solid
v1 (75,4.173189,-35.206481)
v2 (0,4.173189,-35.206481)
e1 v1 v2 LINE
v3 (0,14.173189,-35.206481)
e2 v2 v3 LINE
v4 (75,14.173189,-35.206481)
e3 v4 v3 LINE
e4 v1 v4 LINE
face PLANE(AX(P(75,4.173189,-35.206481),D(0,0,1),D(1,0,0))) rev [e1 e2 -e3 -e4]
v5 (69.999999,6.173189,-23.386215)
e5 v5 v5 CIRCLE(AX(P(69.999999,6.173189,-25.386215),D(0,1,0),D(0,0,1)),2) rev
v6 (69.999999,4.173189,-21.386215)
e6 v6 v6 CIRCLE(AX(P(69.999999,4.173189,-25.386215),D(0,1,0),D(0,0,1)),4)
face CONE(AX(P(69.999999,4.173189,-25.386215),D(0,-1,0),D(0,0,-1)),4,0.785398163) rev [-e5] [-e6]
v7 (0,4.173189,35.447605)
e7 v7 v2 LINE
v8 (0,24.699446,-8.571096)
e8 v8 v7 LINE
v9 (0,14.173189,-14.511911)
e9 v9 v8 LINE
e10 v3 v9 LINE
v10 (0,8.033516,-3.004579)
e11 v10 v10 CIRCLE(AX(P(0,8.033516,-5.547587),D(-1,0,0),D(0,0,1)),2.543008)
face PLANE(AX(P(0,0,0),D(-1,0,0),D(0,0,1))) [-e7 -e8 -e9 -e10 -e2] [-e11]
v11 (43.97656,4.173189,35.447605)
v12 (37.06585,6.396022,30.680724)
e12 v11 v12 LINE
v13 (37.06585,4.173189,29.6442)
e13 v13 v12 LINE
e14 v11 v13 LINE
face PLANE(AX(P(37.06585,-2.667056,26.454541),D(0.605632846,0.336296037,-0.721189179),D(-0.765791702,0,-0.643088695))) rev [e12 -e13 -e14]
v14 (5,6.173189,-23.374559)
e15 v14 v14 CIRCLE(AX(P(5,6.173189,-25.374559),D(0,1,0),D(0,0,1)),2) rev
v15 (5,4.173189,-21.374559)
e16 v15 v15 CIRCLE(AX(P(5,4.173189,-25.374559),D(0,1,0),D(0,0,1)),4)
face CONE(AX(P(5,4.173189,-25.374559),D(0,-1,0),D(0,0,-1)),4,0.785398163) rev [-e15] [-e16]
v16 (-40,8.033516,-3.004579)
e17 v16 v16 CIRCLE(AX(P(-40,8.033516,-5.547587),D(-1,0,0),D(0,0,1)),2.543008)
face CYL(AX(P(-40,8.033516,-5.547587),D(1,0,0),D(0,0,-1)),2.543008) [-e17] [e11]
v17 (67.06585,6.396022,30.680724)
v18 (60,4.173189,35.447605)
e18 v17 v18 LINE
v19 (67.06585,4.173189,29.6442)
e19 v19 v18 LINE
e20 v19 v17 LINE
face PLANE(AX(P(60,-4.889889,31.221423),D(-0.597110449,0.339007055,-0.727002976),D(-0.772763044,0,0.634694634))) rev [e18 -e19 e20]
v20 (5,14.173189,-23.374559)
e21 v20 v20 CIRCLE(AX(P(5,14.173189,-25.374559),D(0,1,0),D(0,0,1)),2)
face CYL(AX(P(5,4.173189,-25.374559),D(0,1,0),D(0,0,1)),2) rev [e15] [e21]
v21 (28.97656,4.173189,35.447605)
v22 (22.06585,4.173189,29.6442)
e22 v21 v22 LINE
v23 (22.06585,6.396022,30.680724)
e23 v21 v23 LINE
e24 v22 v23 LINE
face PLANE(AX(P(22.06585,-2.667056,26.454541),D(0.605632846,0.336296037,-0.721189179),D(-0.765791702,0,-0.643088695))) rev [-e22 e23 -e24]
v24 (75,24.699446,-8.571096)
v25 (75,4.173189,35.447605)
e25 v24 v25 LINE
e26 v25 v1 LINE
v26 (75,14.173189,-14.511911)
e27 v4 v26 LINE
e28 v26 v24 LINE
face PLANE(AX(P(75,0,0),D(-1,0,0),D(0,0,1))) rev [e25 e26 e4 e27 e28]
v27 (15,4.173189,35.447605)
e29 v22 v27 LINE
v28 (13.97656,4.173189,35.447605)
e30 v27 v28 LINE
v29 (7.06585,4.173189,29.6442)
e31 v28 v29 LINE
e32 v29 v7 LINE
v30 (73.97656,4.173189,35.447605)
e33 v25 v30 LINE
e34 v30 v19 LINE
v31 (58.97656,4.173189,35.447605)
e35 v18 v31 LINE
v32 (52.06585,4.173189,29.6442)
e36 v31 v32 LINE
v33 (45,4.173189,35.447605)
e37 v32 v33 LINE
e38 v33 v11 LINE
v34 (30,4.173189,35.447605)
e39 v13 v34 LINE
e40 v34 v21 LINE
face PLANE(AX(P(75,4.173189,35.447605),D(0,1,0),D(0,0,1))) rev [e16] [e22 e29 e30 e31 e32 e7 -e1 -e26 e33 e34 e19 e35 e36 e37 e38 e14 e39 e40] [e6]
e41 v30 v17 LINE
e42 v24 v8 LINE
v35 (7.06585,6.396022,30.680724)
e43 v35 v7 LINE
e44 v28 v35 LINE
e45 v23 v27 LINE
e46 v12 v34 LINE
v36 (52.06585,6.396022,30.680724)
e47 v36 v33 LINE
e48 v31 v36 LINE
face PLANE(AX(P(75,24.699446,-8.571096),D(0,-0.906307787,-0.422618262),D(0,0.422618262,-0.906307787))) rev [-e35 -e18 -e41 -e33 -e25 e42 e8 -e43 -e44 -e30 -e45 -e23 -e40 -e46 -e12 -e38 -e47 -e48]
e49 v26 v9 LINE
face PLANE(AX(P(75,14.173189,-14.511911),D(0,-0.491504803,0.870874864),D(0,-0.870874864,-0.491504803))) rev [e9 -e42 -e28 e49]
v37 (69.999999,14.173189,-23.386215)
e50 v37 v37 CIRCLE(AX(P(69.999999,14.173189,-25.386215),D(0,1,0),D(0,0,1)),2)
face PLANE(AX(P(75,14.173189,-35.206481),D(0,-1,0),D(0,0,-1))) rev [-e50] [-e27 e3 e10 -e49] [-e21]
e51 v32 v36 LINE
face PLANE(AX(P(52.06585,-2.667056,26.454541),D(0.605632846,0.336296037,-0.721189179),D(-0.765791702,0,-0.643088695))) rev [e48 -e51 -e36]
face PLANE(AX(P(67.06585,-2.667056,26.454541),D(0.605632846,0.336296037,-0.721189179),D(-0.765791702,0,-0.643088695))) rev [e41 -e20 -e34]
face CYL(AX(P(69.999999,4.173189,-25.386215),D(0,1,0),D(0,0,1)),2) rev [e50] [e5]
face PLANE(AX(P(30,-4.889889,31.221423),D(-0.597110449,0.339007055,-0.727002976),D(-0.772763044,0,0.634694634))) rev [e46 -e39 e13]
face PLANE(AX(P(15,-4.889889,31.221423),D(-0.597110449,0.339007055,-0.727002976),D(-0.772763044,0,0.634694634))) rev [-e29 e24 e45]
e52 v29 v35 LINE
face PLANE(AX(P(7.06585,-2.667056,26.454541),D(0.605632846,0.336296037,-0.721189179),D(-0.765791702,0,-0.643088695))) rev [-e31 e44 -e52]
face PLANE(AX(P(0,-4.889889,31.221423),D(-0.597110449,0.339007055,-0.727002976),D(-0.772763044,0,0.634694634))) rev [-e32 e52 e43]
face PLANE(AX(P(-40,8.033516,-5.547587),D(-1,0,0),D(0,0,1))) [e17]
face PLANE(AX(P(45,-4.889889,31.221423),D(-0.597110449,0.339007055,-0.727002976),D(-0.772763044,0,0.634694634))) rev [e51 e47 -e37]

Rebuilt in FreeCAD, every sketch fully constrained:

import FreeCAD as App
import Part
import Sketcher

V = App.Vector
Q = App.Units.Quantity


def edges_at(feature, points):
    """Names of the edges that pass closest to the given points."""
    edges = feature.Shape.Edges
    near = lambda p: min(range(len(edges)), key=lambda i: edges[i].distToShape(Part.Vertex(*p))[0])
    return sorted({f"Edge{near(p) + 1}" for p in points})


def add_polygon(sketch, points):
    """Adds a closed chain of lines whose ends are joined by coincident constraints."""
    first, n = sketch.GeometryCount, len(points)
    for a, b in zip(points, points[1:] + points[:1]):
        sketch.addGeometry(Part.LineSegment(App.Vector(*a, 0), App.Vector(*b, 0)), False)
    for i in range(n):
        sketch.addConstraint(Sketcher.Constraint("Coincident", first + i, 2, first + (i + 1) % n, 1))

doc = App.newDocument("Part")
body = doc.addObject("PartDesign::Body", "Body")

sketch1 = body.newObject("Sketcher::SketchObject", "Sketch")
sketch1.AttachmentSupport = (doc.getObject("YZ_Plane"), [""])
sketch1.MapMode = "FlatFace"
add_polygon(sketch1, [(4, 35), (4, -35), (14, -35), (14, -15), (25, -9)])
sketch1.addConstraint([
    Sketcher.Constraint("Vertical", 0),
    Sketcher.Constraint("Horizontal", 1),
    Sketcher.Constraint("Vertical", 2),
    Sketcher.Constraint("DistanceX", 1, 1, 1, 2, 10.0),
    Sketcher.Constraint("Angle", 4, Q("115 deg")),
    Sketcher.Constraint("DistanceY", 2, 1, 2, 2, 20.694571),
    Sketcher.Constraint("DistanceY", 3, 2, 4, 2, 44.018701),
    Sketcher.Constraint("DistanceY", 0, 2, 0, 1, 70.654087),
    Sketcher.Constraint("DistanceX", -1, 1, 0, 2, 4.173189),
    Sketcher.Constraint("DistanceY", 0, 2, -1, 1, 35.206481),
])
pad1 = body.newObject("PartDesign::Pad", "Pad")
pad1.Profile = sketch1
pad1.Length = 75

sketch2 = body.newObject("Sketcher::SketchObject", "Sketch001")
sketch2.AttachmentSupport = (doc.getObject("XZ_Plane"), [""])
sketch2.MapMode = "FlatFace"
sketch2.AttachmentOffset = App.Placement(V(0, 0, -14.173189), App.Rotation())
sketch2.addGeometry([
    Part.Circle(V(5, -25.4, 0), V(0, 0, 1), 2),
    Part.Circle(V(70, -25.4, 0), V(0, 0, 1), 2),
], False)
sketch2.addConstraint([
    Sketcher.Constraint("Equal", 0, 1),
    Sketcher.Constraint("Diameter", 0, 4.0),
    Sketcher.Constraint("DistanceX", -1, 1, 0, 3, 5.0),
    Sketcher.Constraint("DistanceX", -1, 1, 1, 3, 69.999999),
    Sketcher.Constraint("DistanceY", 0, 3, -1, 1, 25.374559),
    Sketcher.Constraint("DistanceY", 1, 3, -1, 1, 25.386215),
])
pocket1 = body.newObject("PartDesign::Pocket", "Pocket")
pocket1.Profile = sketch2
pocket1.Length = 10
pocket1.Reversed = True

sketch3 = body.newObject("Sketcher::SketchObject", "Sketch002")
sketch3.Placement = App.Placement(V(0, 17.005052, 7.929586), App.Rotation(V(1, 0, 0), V(0, 0.422618262, -0.906307787), V(0, 0.906307787, 0.422618262), "ZXY"))
add_polygon(sketch3, [(7, -25), (0, -30), (14, -30)])
add_polygon(sketch3, [(29, -30), (22, -25), (15, -30)])
add_polygon(sketch3, [(44, -30), (37, -25), (30, -30)])
add_polygon(sketch3, [(59, -30), (52, -25), (45, -30)])
add_polygon(sketch3, [(74, -30), (67, -25), (60, -30)])
sketch3.addConstraint([
    Sketcher.Constraint("Horizontal", 1),
    Sketcher.Constraint("Horizontal", 5),
    Sketcher.Constraint("Horizontal", 8),
    Sketcher.Constraint("Horizontal", 11),
    Sketcher.Constraint("Horizontal", 14),
    Sketcher.Constraint("PointOnObject", 0, 2, -2),
    Sketcher.Constraint("Parallel", 2, 3),
    Sketcher.Constraint("Parallel", 0, 4),
    Sketcher.Constraint("Parallel", 3, 6),
    Sketcher.Constraint("Parallel", 4, 7),
    Sketcher.Constraint("Parallel", 6, 9),
    Sketcher.Constraint("Parallel", 7, 10),
    Sketcher.Constraint("Parallel", 9, 12),
    Sketcher.Constraint("Parallel", 10, 13),
    Sketcher.Constraint("Horizontal", 2, 2, 3, 2),
    Sketcher.Constraint("Horizontal", 1, 2, 4, 2),
    Sketcher.Constraint("Horizontal", 3, 2, 6, 2),
    Sketcher.Constraint("Horizontal", 5, 2, 7, 2),
    Sketcher.Constraint("Horizontal", 6, 2, 9, 2),
    Sketcher.Constraint("Horizontal", 8, 2, 10, 2),
    Sketcher.Constraint("Horizontal", 9, 2, 12, 2),
    Sketcher.Constraint("Horizontal", 11, 2, 13, 2),
    Sketcher.Constraint("DistanceX", -1, 1, 4, 2, 15.0),
    Sketcher.Constraint("DistanceX", -1, 1, 7, 2, 30.0),
    Sketcher.Constraint("DistanceX", -1, 1, 10, 2, 45.0),
    Sketcher.Constraint("DistanceX", -1, 1, 13, 2, 60.0),
    Sketcher.Constraint("DistanceX", 1, 1, 1, 2, 13.97656),
    Sketcher.Constraint("Distance", 0, 8.80854),
    Sketcher.Constraint("DistanceX", -1, 1, 2, 2, 7.06585),
    Sketcher.Constraint("DistanceY", 0, 2, -1, 1, 30.362775),
])
pocket2 = body.newObject("PartDesign::Pocket", "Pocket001")
pocket2.Profile = sketch3
pocket2.Length = 10
doc.recompute()

chamfer = body.newObject("PartDesign::Chamfer", "Chamfer")
chamfer.Base = (pocket2, edges_at(pocket2, [(5, 4.173, -27.375), (70, 4.173, -27.386)]))
chamfer.Size = 2

sketch4 = body.newObject("Sketcher::SketchObject", "Sketch003")
sketch4.AttachmentSupport = (doc.getObject("YZ_Plane"), [""])
sketch4.MapMode = "FlatFace"
sketch4.addGeometry(Part.Circle(V(8, -5.5, 0), V(0, 0, 1), 2.5), False)
sketch4.addConstraint([
    Sketcher.Constraint("Diameter", 0, 5.086017),
    Sketcher.Constraint("DistanceX", -1, 1, 0, 3, 8.033516),
    Sketcher.Constraint("DistanceY", 0, 3, -1, 1, 5.547587),
])
pad2 = body.newObject("PartDesign::Pad", "Pad001")
pad2.Profile = sketch4
pad2.Length = 40
pad2.Reversed = True

doc.recompute()
